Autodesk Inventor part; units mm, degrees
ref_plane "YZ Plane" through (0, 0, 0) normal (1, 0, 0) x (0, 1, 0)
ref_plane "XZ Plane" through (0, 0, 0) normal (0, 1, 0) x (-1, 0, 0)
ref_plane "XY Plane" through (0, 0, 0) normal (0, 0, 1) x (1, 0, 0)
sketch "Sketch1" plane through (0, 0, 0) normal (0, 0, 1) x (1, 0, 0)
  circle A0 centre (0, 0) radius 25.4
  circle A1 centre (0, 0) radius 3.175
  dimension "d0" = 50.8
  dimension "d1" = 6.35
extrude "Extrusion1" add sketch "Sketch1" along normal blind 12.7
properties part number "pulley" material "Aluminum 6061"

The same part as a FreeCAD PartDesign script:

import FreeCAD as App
import Part
import Sketcher
from FreeCAD import Vector
Q = App.Units.Quantity

doc = App.newDocument("Part")
params = doc.addObject("Spreadsheet::Sheet", "Params")
for row, (alias, value) in enumerate([
    ("sketch1_diameter", "2 in"),
    ("sketch1_diameter2", "0.25 in"),
    ("pad1_length", "0.5 in"),
], start=1):
    params.set(f"A{row}", alias)
    params.set(f"B{row}", "=" + value)
    params.setAlias(f"B{row}", alias)

body = doc.addObject("PartDesign::Body", "Body")

sketch1 = body.newObject("Sketcher::SketchObject", "Sketch")
sketch1.AttachmentSupport = (doc.getObject("XY_Plane"), [""])
sketch1.MapMode = "FlatFace"
sketch1.addGeometry([
    Part.Circle(Vector(0, 0, 0), Vector(0, 0, 1), 25.4),
    Part.Circle(Vector(0, 0, 0), Vector(0, 0, 1), 3.2),
], False)
sketch1.addConstraint([
    Sketcher.Constraint("Coincident", 0, 3, -1, 1),
    Sketcher.Constraint("Coincident", 1, 3, -1, 1),
    Sketcher.Constraint("Diameter", 0, Q("2 in")),
    Sketcher.Constraint("Diameter", 1, Q("0.25 in")),
])
sketch1.setExpression("Constraints[2]", "Params.sketch1_diameter")
sketch1.setExpression("Constraints[3]", "Params.sketch1_diameter2")
pad1 = body.newObject("PartDesign::Pad", "Pad")
pad1.Profile = sketch1
pad1.setExpression("Length", "Params.pad1_length")

doc.recompute()
